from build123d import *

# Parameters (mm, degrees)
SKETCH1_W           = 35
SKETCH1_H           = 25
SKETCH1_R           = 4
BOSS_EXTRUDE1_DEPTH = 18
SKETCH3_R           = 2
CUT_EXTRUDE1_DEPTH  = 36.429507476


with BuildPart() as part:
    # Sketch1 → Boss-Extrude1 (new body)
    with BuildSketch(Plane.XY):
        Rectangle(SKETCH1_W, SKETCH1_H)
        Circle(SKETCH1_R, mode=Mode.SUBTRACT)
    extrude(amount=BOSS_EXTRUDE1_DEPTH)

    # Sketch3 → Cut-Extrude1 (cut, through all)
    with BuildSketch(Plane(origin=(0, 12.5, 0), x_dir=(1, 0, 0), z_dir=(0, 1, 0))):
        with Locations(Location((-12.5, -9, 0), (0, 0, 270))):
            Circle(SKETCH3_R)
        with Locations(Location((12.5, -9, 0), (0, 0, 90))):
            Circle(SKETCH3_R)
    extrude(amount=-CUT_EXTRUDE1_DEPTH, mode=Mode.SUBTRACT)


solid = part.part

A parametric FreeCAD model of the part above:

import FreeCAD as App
import Part
import Sketcher
Q = App.Units.Quantity


def add_polygon(sketch, points):
    """Adds a closed chain of lines whose ends are joined by coincident constraints."""
    first, n = sketch.GeometryCount, len(points)
    for a, b in zip(points, points[1:] + points[:1]):
        sketch.addGeometry(Part.LineSegment(App.Vector(*a, 0), App.Vector(*b, 0)), False)
    for i in range(n):
        sketch.addConstraint(Sketcher.Constraint("Coincident", first + i, 2, first + (i + 1) % n, 1))

doc = App.newDocument("Part")
body = doc.addObject("PartDesign::Body", "Body")

sketch1 = body.newObject("Sketcher::SketchObject", "Sketch")
sketch1.AttachmentSupport = (doc.getObject("XY_Plane"), [""])
sketch1.MapMode = "FlatFace"
add_polygon(sketch1, [(-17.5, 12.5), (-17.5, -12.5), (17.5, -12.5), (17.5, 12.5)])
sketch1.addGeometry(Part.Circle(App.Vector(0, 0, 0), App.Vector(0, 0, 1), 4), False)
sketch1.addConstraint([
    Sketcher.Constraint("Vertical", 0),
    Sketcher.Constraint("Horizontal", 1),
    Sketcher.Constraint("Vertical", 2),
    Sketcher.Constraint("Horizontal", 3),
    Sketcher.Constraint("Coincident", 4, 3, -1, 1),
    Sketcher.Constraint("Symmetric", 0, 2, 2, 2, -1, 1),
    Sketcher.Constraint("Diameter", 4, Q("8 mm")),
    Sketcher.Constraint("DistanceX", 1, 1, 1, 2, Q("35 mm")),
    Sketcher.Constraint("DistanceY", 0, 2, 0, 1, Q("25 mm")),
])
pad1 = body.newObject("PartDesign::Pad", "Pad")
pad1.Profile = sketch1
pad1.Length = 18

sketch2 = body.newObject("Sketcher::SketchObject", "Sketch001")
sketch2.AttachmentSupport = (doc.getObject("XZ_Plane"), [""])
sketch2.MapMode = "FlatFace"
sketch2.AttachmentOffset = App.Placement(App.Vector(0, 0, -12.5), App.Rotation())
sketch2.addGeometry([
    Part.Circle(App.Vector(-12.5, 9, 0), App.Vector(0, 0, 1), 2),
    Part.Circle(App.Vector(12.5, 9, 0), App.Vector(0, 0, 1), 2),
], False)
sketch2.addConstraint([
    Sketcher.Constraint("Equal", 0, 1),
    Sketcher.Constraint("Symmetric", 0, 3, 1, 3, -2),
    Sketcher.Constraint("Diameter", 0, Q("4 mm")),
    Sketcher.Constraint("DistanceY", -1, 1, 0, 3, Q("9 mm")),
    Sketcher.Constraint("DistanceX", 0, 3, 1, 3, Q("25 mm")),
])
pocket1 = body.newObject("PartDesign::Pocket", "Pocket")
pocket1.Profile = sketch2
pocket1.Type = "ThroughAll"
pocket1.Reversed = True

doc.recompute()
